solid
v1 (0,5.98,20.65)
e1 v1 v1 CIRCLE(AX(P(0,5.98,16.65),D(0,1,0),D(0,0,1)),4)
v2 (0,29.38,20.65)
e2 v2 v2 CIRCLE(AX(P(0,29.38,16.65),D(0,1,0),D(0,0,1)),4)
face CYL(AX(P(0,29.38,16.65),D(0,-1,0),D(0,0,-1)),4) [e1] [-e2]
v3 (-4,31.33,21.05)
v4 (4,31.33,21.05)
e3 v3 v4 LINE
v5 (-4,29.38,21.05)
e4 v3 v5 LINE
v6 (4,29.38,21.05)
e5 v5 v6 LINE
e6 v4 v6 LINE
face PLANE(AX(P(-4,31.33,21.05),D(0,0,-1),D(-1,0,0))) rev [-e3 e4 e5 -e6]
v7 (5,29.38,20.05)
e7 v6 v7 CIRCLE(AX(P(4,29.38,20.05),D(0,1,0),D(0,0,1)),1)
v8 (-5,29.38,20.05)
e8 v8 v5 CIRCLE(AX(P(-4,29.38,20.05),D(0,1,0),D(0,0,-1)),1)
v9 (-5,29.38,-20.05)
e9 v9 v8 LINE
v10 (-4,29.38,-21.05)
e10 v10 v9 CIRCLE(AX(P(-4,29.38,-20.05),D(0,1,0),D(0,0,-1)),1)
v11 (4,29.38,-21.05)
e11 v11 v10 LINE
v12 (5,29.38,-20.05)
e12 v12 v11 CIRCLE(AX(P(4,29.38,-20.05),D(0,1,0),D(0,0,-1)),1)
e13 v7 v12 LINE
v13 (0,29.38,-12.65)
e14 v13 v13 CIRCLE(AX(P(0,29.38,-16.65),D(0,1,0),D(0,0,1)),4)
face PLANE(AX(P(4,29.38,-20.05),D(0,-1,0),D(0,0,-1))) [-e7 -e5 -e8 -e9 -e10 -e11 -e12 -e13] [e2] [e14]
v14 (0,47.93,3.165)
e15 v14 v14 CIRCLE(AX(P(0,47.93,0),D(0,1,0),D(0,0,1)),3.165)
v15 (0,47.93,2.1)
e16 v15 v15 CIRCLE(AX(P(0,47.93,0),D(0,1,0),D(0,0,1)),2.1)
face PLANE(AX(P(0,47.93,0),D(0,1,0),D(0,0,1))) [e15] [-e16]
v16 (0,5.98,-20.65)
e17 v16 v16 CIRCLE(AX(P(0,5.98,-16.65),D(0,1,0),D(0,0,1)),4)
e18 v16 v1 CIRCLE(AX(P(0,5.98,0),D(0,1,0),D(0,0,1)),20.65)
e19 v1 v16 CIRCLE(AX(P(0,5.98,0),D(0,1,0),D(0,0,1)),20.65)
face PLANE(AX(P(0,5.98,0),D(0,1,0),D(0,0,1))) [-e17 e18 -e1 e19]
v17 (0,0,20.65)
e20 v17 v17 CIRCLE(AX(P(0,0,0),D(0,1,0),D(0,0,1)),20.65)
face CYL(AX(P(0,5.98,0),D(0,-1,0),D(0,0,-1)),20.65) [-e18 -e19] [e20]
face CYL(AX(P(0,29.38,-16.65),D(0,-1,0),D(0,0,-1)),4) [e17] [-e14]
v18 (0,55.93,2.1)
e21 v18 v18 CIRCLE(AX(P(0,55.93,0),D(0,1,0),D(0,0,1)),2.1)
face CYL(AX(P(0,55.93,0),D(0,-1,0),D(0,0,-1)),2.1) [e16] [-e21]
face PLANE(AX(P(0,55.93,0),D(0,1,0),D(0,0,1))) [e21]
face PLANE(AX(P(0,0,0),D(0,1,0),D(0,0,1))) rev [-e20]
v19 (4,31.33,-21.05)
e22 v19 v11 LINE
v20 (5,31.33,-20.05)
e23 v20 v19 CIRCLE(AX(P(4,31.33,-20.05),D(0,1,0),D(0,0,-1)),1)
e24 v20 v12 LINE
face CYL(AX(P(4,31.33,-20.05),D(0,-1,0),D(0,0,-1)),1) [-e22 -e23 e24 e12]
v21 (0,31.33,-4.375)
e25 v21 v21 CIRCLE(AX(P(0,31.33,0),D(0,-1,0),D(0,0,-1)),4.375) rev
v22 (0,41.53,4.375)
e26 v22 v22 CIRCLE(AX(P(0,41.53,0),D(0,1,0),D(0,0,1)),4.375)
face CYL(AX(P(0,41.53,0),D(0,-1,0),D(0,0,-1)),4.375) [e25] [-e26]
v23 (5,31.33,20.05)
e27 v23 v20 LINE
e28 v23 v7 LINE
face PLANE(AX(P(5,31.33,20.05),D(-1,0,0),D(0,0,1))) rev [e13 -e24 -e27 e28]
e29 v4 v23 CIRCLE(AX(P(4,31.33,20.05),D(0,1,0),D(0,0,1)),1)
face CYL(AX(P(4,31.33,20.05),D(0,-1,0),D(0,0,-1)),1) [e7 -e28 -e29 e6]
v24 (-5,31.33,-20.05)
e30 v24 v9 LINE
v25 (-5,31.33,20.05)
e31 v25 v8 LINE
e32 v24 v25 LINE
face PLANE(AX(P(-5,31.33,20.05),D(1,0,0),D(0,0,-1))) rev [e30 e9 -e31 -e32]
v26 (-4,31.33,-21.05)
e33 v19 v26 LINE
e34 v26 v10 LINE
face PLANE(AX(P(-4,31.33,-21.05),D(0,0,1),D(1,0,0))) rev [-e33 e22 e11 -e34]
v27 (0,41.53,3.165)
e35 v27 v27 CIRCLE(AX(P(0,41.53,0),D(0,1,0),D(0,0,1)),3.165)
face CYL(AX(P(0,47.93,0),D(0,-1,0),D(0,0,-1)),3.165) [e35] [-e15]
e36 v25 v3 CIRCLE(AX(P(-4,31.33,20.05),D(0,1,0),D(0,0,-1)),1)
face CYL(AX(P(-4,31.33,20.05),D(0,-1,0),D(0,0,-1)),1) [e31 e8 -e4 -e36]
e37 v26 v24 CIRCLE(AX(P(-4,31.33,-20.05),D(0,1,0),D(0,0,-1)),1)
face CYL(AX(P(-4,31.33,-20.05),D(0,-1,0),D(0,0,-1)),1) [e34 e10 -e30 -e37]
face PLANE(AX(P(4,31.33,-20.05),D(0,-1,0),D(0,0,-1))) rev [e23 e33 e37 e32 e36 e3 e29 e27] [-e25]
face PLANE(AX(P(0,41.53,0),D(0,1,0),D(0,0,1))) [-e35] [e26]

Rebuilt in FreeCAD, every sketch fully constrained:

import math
import FreeCAD as App
import Part
import Sketcher
from FreeCAD import Vector
Q = App.Units.Quantity

doc = App.newDocument("Part")
body = doc.addObject("PartDesign::Body", "Body")

sketch1 = doc.addObject("Sketcher::SketchObject", "Sketch")
body.addObject(sketch1)
sketch1.AttachmentSupport = (doc.XZ_Plane, [""])
sketch1.MapMode = "FlatFace"
sketch1.addGeometry(Part.Circle(Vector(0, 0, 0), Vector(0, 0, 1), 21), False)
sketch1.addConstraint([
    Sketcher.Constraint("Coincident", 0, 3, -1, 1),
    Sketcher.Constraint("Diameter", 0, Q("41.3 mm")),
])
pad1 = doc.addObject("PartDesign::Pad", "Pad")
body.addObject(pad1)
pad1.Profile = sketch1
pad1.Length = 5.98
pad1.Reversed = True

sketch2 = doc.addObject("Sketcher::SketchObject", "Sketch001")
body.addObject(sketch2)
sketch2.AttachmentSupport = (doc.XZ_Plane, [""])
sketch2.MapMode = "FlatFace"
sketch2.AttachmentOffset = App.Placement(Vector(0, 0, -5.98), App.Rotation())
sketch2.addGeometry([
    Part.Circle(Vector(0, 16.6, 0), Vector(0, 0, 1), 4),
    Part.Circle(Vector(0, -16.6, 0), Vector(0, 0, 1), 4),
], False)
sketch2.addConstraint([
    Sketcher.Constraint("Equal", 0, 1),
    Sketcher.Constraint("Symmetric", 0, 3, 1, 3, -1, 1),
    Sketcher.Constraint("PointOnObject", 0, 3, -2),
    Sketcher.Constraint("Diameter", 0, Q("8 mm")),
    Sketcher.Constraint("DistanceY", 1, 3, 0, 3, Q("33.3 mm")),
])
pad2 = doc.addObject("PartDesign::Pad", "Pad001")
body.addObject(pad2)
pad2.Profile = sketch2
pad2.Length = 23.4
pad2.Reversed = True

sketch3 = doc.addObject("Sketcher::SketchObject", "Sketch002")
body.addObject(sketch3)
sketch3.AttachmentSupport = (doc.XZ_Plane, [""])
sketch3.MapMode = "FlatFace"
sketch3.AttachmentOffset = App.Placement(Vector(0, 0, -29.38), App.Rotation())
sketch3.addGeometry([
    Part.LineSegment(Vector(-4, 21.1, 0), Vector(4, 21.1, 0)),
    Part.ArcOfCircle(Part.Circle(Vector(4, 20, 0), Vector(0, 0, 1), 1), math.radians(0), math.radians(90)),
    Part.LineSegment(Vector(5, 20.1, 0), Vector(5, -20.1, 0)),
    Part.ArcOfCircle(Part.Circle(Vector(4, -20, 0), Vector(0, 0, 1), 1), math.radians(-90), math.radians(0)),
    Part.LineSegment(Vector(4, -21.1, 0), Vector(-4, -21.1, 0)),
    Part.ArcOfCircle(Part.Circle(Vector(-4, -20, 0), Vector(0, 0, 1), 1), math.radians(-180), math.radians(-90)),
    Part.LineSegment(Vector(-5, -20.1, 0), Vector(-5, 20.1, 0)),
    Part.ArcOfCircle(Part.Circle(Vector(-4, 20, 0), Vector(0, 0, 1), 1), math.radians(90), math.radians(180)),
], False)
sketch3.addConstraint([
    Sketcher.Constraint("Tangent", 0, 2, 1, 2),
    Sketcher.Constraint("Tangent", 1, 1, 2, 1),
    Sketcher.Constraint("Tangent", 2, 2, 3, 2),
    Sketcher.Constraint("Tangent", 3, 1, 4, 1),
    Sketcher.Constraint("Tangent", 4, 2, 5, 2),
    Sketcher.Constraint("Tangent", 5, 1, 6, 1),
    Sketcher.Constraint("Tangent", 6, 2, 7, 2),
    Sketcher.Constraint("Tangent", 7, 1, 0, 1),
    Sketcher.Constraint("Horizontal", 0),
    Sketcher.Constraint("Vertical", 2),
    Sketcher.Constraint("Horizontal", 4),
    Sketcher.Constraint("Vertical", 6),
    Sketcher.Constraint("Equal", 1, 3),
    Sketcher.Constraint("Equal", 3, 5),
    Sketcher.Constraint("Equal", 5, 7),
    Sketcher.Constraint("Symmetric", 1, 3, 5, 3, -1, 1),
    Sketcher.Constraint("Radius", 1, Q("1 mm")),
    Sketcher.Constraint("DistanceX", 0, 1, 0, 2, Q("8 mm")),
    Sketcher.Constraint("DistanceY", 2, 2, 2, 1, Q("40.1 mm")),
])
pad3 = doc.addObject("PartDesign::Pad", "Pad002")
body.addObject(pad3)
pad3.Profile = sketch3
pad3.Length = 1.95
pad3.Reversed = True

sketch4 = doc.addObject("Sketcher::SketchObject", "Sketch003")
body.addObject(sketch4)
sketch4.AttachmentSupport = (doc.XZ_Plane, [""])
sketch4.MapMode = "FlatFace"
sketch4.AttachmentOffset = App.Placement(Vector(0, 0, -31.33), App.Rotation())
sketch4.addGeometry(Part.Circle(Vector(0, 0, 0), Vector(0, 0, 1), 4.4), False)
sketch4.addConstraint([
    Sketcher.Constraint("Coincident", 0, 3, -1, 1),
    Sketcher.Constraint("Diameter", 0, Q("8.75 mm")),
])
pad4 = doc.addObject("PartDesign::Pad", "Pad003")
body.addObject(pad4)
pad4.Profile = sketch4
pad4.Length = 10.2
pad4.Reversed = True

sketch5 = doc.addObject("Sketcher::SketchObject", "Sketch004")
body.addObject(sketch5)
sketch5.AttachmentSupport = (doc.XZ_Plane, [""])
sketch5.MapMode = "FlatFace"
sketch5.AttachmentOffset = App.Placement(Vector(0, 0, -41.53), App.Rotation())
sketch5.addGeometry(Part.Circle(Vector(0, 0, 0), Vector(0, 0, 1), 3.2), False)
sketch5.addConstraint([
    Sketcher.Constraint("Coincident", 0, 3, -1, 1),
    Sketcher.Constraint("Diameter", 0, Q("6.33 mm")),
])
pad5 = doc.addObject("PartDesign::Pad", "Pad004")
body.addObject(pad5)
pad5.Profile = sketch5
pad5.Length = 6.4
pad5.Reversed = True

sketch6 = doc.addObject("Sketcher::SketchObject", "Sketch005")
body.addObject(sketch6)
sketch6.AttachmentSupport = (doc.XZ_Plane, [""])
sketch6.MapMode = "FlatFace"
sketch6.AttachmentOffset = App.Placement(Vector(0, 0, -47.93), App.Rotation())
sketch6.addGeometry(Part.Circle(Vector(0, 0, 0), Vector(0, 0, 1), 2.1), False)
sketch6.addConstraint([
    Sketcher.Constraint("Coincident", 0, 3, -1, 1),
    Sketcher.Constraint("Diameter", 0, Q("4.2 mm")),
])
pad6 = doc.addObject("PartDesign::Pad", "Pad005")
body.addObject(pad6)
pad6.Profile = sketch6
pad6.Length = 8
pad6.Reversed = True

doc.recompute()
